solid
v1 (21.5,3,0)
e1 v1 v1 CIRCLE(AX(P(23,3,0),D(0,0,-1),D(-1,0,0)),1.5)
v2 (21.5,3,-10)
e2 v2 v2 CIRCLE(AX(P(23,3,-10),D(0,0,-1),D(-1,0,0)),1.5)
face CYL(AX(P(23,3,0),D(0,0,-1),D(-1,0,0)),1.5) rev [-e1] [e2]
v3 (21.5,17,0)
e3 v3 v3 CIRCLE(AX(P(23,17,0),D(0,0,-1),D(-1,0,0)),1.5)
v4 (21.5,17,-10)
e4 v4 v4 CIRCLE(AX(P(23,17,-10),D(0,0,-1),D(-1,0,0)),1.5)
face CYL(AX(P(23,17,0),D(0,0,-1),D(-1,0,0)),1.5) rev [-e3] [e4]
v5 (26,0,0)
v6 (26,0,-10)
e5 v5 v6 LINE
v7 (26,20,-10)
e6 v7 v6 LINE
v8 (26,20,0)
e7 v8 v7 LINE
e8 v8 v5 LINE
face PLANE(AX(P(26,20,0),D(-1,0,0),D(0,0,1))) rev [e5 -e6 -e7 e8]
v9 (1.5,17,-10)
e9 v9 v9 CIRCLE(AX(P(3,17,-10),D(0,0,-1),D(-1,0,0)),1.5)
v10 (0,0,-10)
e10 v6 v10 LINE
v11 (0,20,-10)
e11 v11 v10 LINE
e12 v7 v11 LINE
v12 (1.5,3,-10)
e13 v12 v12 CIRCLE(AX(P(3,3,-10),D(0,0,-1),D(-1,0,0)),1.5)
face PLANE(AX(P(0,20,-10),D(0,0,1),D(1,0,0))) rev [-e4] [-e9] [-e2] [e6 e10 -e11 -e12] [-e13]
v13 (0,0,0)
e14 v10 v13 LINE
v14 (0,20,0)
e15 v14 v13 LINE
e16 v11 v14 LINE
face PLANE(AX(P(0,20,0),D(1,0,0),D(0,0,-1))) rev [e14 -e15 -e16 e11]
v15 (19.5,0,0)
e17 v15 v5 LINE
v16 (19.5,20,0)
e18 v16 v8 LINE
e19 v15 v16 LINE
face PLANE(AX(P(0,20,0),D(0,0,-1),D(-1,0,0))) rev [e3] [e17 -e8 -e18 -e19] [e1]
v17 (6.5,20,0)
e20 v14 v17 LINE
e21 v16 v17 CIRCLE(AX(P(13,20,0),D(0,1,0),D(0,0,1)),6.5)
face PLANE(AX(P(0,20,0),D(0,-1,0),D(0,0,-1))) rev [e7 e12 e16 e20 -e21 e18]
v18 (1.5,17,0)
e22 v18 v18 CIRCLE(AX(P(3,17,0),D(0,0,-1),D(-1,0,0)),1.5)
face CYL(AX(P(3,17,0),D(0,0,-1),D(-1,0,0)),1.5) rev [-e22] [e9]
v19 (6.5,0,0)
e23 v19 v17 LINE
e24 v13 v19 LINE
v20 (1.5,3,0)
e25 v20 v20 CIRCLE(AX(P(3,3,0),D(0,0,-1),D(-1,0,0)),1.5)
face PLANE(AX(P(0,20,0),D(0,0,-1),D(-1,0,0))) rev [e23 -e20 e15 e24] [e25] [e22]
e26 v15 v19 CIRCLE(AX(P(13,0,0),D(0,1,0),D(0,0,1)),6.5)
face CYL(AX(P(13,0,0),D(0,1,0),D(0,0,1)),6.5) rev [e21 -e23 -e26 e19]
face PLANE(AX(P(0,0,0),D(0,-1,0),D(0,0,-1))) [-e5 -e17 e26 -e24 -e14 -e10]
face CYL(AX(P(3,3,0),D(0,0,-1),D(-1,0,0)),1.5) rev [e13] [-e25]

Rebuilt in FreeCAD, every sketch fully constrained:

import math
import FreeCAD as App
import Part
import Sketcher
from FreeCAD import Vector

doc = App.newDocument("Part")
params = doc.addObject("Spreadsheet::Sheet", "Params")
for row, (alias, value) in enumerate([
    ("sketch1_width", "26 mm"),
    ("sketch1_height", "10 mm"),
    ("pad1_length", "20 mm"),
    ("sketch2_radius", "6.5 mm"),
    ("sketch3_diameter", "3 mm"),
    ("pocket2_length", "10 mm"),
], start=1):
    params.set(f"A{row}", alias)
    params.set(f"B{row}", "=" + value)
    params.setAlias(f"B{row}", alias)

body = doc.addObject("PartDesign::Body", "Body")

# Sketch on XZ plane
sketch1 = doc.addObject("Sketcher::SketchObject", "Sketch")
body.addObject(sketch1)
sketch1.AttachmentSupport = (doc.XZ_Plane, [""])
sketch1.MapMode = "FlatFace"
sketch1.addGeometry([
    Part.LineSegment(Vector(0, -10, 0), Vector(0, 0, 0)),
    Part.LineSegment(Vector(0, 0, 0), Vector(26, 0, 0)),
    Part.LineSegment(Vector(26, 0, 0), Vector(26, -10, 0)),
    Part.LineSegment(Vector(26, -10, 0), Vector(0, -10, 0)),
], False)
sketch1.addConstraint([
    Sketcher.Constraint("Coincident", 0, 2, 1, 1),
    Sketcher.Constraint("Coincident", 1, 2, 2, 1),
    Sketcher.Constraint("Coincident", 2, 2, 3, 1),
    Sketcher.Constraint("Coincident", 3, 2, 0, 1),
    Sketcher.Constraint("Vertical", 0),
    Sketcher.Constraint("Horizontal", 1),
    Sketcher.Constraint("Vertical", 2),
    Sketcher.Constraint("Horizontal", 3),
    Sketcher.Constraint("Coincident", 0, 2, -1, 1),
    Sketcher.Constraint("DistanceX", 1, 1, 1, 2, 26.0),
    Sketcher.Constraint("DistanceY", 0, 1, 0, 2, 10.0),
])
sketch1.setExpression("Constraints[9]", "Params.sketch1_width")
sketch1.setExpression("Constraints[10]", "Params.sketch1_height")
pad1 = doc.addObject("PartDesign::Pad", "Pad")
body.addObject(pad1)
pad1.Profile = sketch1
pad1.setExpression("Length", "Params.pad1_length")
pad1.Reversed = True

# Sketch on XZ plane
sketch2 = doc.addObject("Sketcher::SketchObject", "Sketch001")
body.addObject(sketch2)
sketch2.AttachmentSupport = (doc.XZ_Plane, [""])
sketch2.MapMode = "FlatFace"
sketch2.AttachmentOffset = App.Placement(Vector(0, 0, -20), App.Rotation())
sketch2.addGeometry([
    Part.LineSegment(Vector(6, 0, 0), Vector(20, 0, 0)),
    Part.ArcOfCircle(Part.Circle(Vector(13, 0, 0), Vector(0, 0, 1), 6), math.radians(180), math.radians(360)),
], False)
sketch2.addConstraint([
    Sketcher.Constraint("Coincident", 0, 1, 1, 1),
    Sketcher.Constraint("Coincident", 1, 2, 0, 2),
    Sketcher.Constraint("Horizontal", 0),
    Sketcher.Constraint("PointOnObject", 1, 3, -1),
    Sketcher.Constraint("PointOnObject", 0, 1, -1),
    Sketcher.Constraint("Radius", 1, 6.5),
    Sketcher.Constraint("DistanceX", -1, 1, 1, 3, 13.0),
])
sketch2.setExpression("Constraints[5]", "Params.sketch2_radius")
pocket1 = doc.addObject("PartDesign::Pocket", "Pocket")
body.addObject(pocket1)
pocket1.Profile = sketch2
pocket1.Type = "ThroughAll"
pocket1.Reversed = True

# Sketch on XY plane
sketch3 = doc.addObject("Sketcher::SketchObject", "Sketch002")
body.addObject(sketch3)
sketch3.AttachmentSupport = (doc.XY_Plane, [""])
sketch3.MapMode = "FlatFace"
sketch3.AttachmentOffset = App.Placement(Vector(0, 0, -10), App.Rotation())
sketch3.addGeometry([
    Part.Circle(Vector(23, 17, 0), Vector(0, 0, 1), 1.5),
    Part.Circle(Vector(3, 17, 0), Vector(0, 0, 1), 1.5),
    Part.Circle(Vector(3, 3, 0), Vector(0, 0, 1), 1.5),
    Part.Circle(Vector(23, 3, 0), Vector(0, 0, 1), 1.5),
], False)
sketch3.addConstraint([
    Sketcher.Constraint("Equal", 0, 1),
    Sketcher.Constraint("Equal", 1, 2),
    Sketcher.Constraint("Equal", 2, 3),
    Sketcher.Constraint("Horizontal", 0, 3, 1, 3),
    Sketcher.Constraint("Horizontal", 2, 3, 3, 3),
    Sketcher.Constraint("Vertical", 1, 3, 2, 3),
    Sketcher.Constraint("Vertical", 0, 3, 3, 3),
    Sketcher.Constraint("Diameter", 0, 3.0),
    Sketcher.Constraint("DistanceX", -1, 1, 0, 3, 23.0),
    Sketcher.Constraint("DistanceY", -1, 1, 0, 3, 17.0),
    Sketcher.Constraint("DistanceX", -1, 1, 1, 3, 3.0),
    Sketcher.Constraint("DistanceY", -1, 1, 2, 3, 3.0),
])
sketch3.setExpression("Constraints[7]", "Params.sketch3_diameter")
pocket2 = doc.addObject("PartDesign::Pocket", "Pocket001")
body.addObject(pocket2)
pocket2.Profile = sketch3
pocket2.setExpression("Length", "Params.pocket2_length")
pocket2.Reversed = True

doc.recompute()
